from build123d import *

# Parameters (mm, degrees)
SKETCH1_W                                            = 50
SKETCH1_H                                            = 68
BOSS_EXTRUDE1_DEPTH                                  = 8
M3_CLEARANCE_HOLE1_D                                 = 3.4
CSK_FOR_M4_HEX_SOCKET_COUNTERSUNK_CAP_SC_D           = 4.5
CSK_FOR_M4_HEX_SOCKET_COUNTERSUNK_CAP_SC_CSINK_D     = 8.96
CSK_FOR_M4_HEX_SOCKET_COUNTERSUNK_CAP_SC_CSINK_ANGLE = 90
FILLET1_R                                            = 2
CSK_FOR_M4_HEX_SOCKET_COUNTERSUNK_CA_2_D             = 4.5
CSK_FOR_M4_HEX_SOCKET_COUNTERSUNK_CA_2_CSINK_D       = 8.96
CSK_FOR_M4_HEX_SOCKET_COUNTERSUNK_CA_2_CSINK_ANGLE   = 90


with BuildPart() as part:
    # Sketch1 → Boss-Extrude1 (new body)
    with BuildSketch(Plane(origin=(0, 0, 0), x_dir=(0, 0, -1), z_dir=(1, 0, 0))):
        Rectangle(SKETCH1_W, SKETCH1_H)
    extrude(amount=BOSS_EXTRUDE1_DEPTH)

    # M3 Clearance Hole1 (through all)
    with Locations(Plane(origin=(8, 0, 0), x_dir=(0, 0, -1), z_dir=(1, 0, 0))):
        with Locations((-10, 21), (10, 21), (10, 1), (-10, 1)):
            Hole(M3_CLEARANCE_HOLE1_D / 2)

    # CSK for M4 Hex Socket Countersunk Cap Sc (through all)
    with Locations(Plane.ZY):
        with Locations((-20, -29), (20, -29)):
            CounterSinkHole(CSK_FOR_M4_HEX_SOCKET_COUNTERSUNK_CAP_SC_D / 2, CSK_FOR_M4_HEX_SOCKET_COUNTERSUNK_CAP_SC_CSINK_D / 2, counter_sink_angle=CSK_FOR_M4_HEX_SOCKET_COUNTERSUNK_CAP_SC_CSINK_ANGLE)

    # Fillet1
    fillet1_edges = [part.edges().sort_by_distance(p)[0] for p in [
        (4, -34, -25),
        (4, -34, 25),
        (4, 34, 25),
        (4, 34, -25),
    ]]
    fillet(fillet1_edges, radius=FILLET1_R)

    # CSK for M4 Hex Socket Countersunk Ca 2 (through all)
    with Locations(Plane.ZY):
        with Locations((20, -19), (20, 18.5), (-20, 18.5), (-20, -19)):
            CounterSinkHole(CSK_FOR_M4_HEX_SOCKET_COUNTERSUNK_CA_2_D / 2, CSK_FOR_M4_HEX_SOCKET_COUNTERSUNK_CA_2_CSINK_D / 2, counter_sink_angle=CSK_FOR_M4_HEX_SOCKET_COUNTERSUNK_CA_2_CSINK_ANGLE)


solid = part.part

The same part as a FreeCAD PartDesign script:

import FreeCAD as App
import Part
import Sketcher

V = App.Vector
Q = App.Units.Quantity


def edges_at(feature, points):
    """Names of the edges that pass closest to the given points."""
    edges = feature.Shape.Edges
    near = lambda p: min(range(len(edges)), key=lambda i: edges[i].distToShape(Part.Vertex(*p))[0])
    return sorted({f"Edge{near(p) + 1}" for p in points})


def add_polygon(sketch, points):
    """Adds a closed chain of lines whose ends are joined by coincident constraints."""
    first, n = sketch.GeometryCount, len(points)
    for a, b in zip(points, points[1:] + points[:1]):
        sketch.addGeometry(Part.LineSegment(App.Vector(*a, 0), App.Vector(*b, 0)), False)
    for i in range(n):
        sketch.addConstraint(Sketcher.Constraint("Coincident", first + i, 2, first + (i + 1) % n, 1))

doc = App.newDocument("Part")
params = doc.addObject("Spreadsheet::Sheet", "Params")
for row, (alias, value) in enumerate([
    ("sketch1_width", "68 mm"),
    ("sketch1_height", "50 mm"),
    ("pad1_length", "8 mm"),
    ("sketch2_diameter", "3.4 mm"),
    ("hole_diameter", "3.4 mm"),
    ("sketch3_diameter", "4.5 mm"),
    ("hole2_diameter", "4.5 mm"),
    ("hole2_csink_diameter", "8.96 mm"),
    ("fillet_radius", "2 mm"),
    ("sketch4_diameter", "4.5 mm"),
    ("hole3_diameter", "4.5 mm"),
    ("hole3_csink_diameter", "8.96 mm"),
], start=1):
    params.set(f"A{row}", alias)
    params.set(f"B{row}", "=" + value)
    params.setAlias(f"B{row}", alias)

body = doc.addObject("PartDesign::Body", "Body")

sketch1 = body.newObject("Sketcher::SketchObject", "Sketch")
sketch1.AttachmentSupport = (doc.getObject("YZ_Plane"), [""])
sketch1.MapMode = "FlatFace"
add_polygon(sketch1, [(34, 25), (-34, 25), (-34, -25), (34, -25)])
sketch1.addConstraint([
    Sketcher.Constraint("Horizontal", 0),
    Sketcher.Constraint("Vertical", 1),
    Sketcher.Constraint("Horizontal", 2),
    Sketcher.Constraint("Vertical", 3),
    Sketcher.Constraint("Symmetric", 0, 2, 2, 2, -1, 1),
    Sketcher.Constraint("DistanceX", 0, 2, 0, 1, Q("68 mm")),
    Sketcher.Constraint("DistanceY", 1, 2, 1, 1, Q("50 mm")),
])
sketch1.setExpression("Constraints[9]", "Params.sketch1_width")
sketch1.setExpression("Constraints[10]", "Params.sketch1_height")
pad1 = body.newObject("PartDesign::Pad", "Pad")
pad1.Profile = sketch1
pad1.setExpression("Length", "Params.pad1_length")

sketch2 = body.newObject("Sketcher::SketchObject", "Sketch001")
sketch2.AttachmentSupport = (doc.getObject("YZ_Plane"), [""])
sketch2.MapMode = "FlatFace"
sketch2.AttachmentOffset = App.Placement(V(0, 0, 8), App.Rotation())
sketch2.addGeometry([
    Part.Circle(V(21, 10, 0), V(0, 0, 1), 1.7),
    Part.Circle(V(21, -10, 0), V(0, 0, 1), 1.7),
    Part.Circle(V(1, -10, 0), V(0, 0, 1), 1.7),
    Part.Circle(V(1, 10, 0), V(0, 0, 1), 1.7),
], False)
sketch2.addConstraint([
    Sketcher.Constraint("Equal", 0, 1),
    Sketcher.Constraint("Equal", 1, 2),
    Sketcher.Constraint("Equal", 2, 3),
    Sketcher.Constraint("Symmetric", 0, 3, 1, 3, -1),
    Sketcher.Constraint("Symmetric", 2, 3, 3, 3, -1),
    Sketcher.Constraint("Horizontal", 1, 3, 2, 3),
    Sketcher.Constraint("Diameter", 0, Q("3.4 mm")),
    Sketcher.Constraint("DistanceX", -1, 1, 0, 3, Q("21 mm")),
    Sketcher.Constraint("DistanceY", -1, 1, 0, 3, Q("10 mm")),
    Sketcher.Constraint("DistanceX", -1, 1, 2, 3, Q("1 mm")),
])
sketch2.setExpression("Constraints[6]", "Params.sketch2_diameter")
doc.recompute()
hole = body.newObject("PartDesign::Hole", "Hole")
hole.Profile = sketch2
hole.ThreadType = "None"
hole.setExpression("Diameter", "Params.hole_diameter")
hole.DepthType = "ThroughAll"

sketch3 = body.newObject("Sketcher::SketchObject", "Sketch002")
sketch3.AttachmentSupport = (doc.getObject("YZ_Plane"), [""])
sketch3.MapMode = "FlatFace"
sketch3.addGeometry([
    Part.Circle(V(-29, -20, 0), V(0, 0, 1), 2.2),
    Part.Circle(V(-29, 20, 0), V(0, 0, 1), 2.2),
], False)
sketch3.addConstraint([
    Sketcher.Constraint("Equal", 0, 1),
    Sketcher.Constraint("Symmetric", 0, 3, 1, 3, -1),
    Sketcher.Constraint("Diameter", 0, Q("4.5 mm")),
    Sketcher.Constraint("DistanceX", 0, 3, -1, 1, Q("29 mm")),
    Sketcher.Constraint("DistanceY", 0, 3, -1, 1, Q("20 mm")),
])
sketch3.setExpression("Constraints[2]", "Params.sketch3_diameter")
doc.recompute()
hole2 = body.newObject("PartDesign::Hole", "Hole001")
hole2.Profile = sketch3
hole2.ThreadType = "None"
hole2.setExpression("Diameter", "Params.hole2_diameter")
hole2.DepthType = "ThroughAll"
hole2.HoleCutType = "Countersink"
hole2.setExpression("HoleCutDiameter", "Params.hole2_csink_diameter")
hole2.HoleCutCountersinkAngle = 90
hole2.Reversed = True
doc.recompute()

fillet = body.newObject("PartDesign::Fillet", "Fillet")
fillet.Base = (hole2, edges_at(hole2, [
    (4, -34, -25),
    (4, -34, 25),
    (4, 34, 25),
    (4, 34, -25),
]))
fillet.setExpression("Radius", "Params.fillet_radius")

sketch4 = body.newObject("Sketcher::SketchObject", "Sketch003")
sketch4.AttachmentSupport = (doc.getObject("YZ_Plane"), [""])
sketch4.MapMode = "FlatFace"
sketch4.addGeometry([
    Part.Circle(V(-19, 20, 0), V(0, 0, 1), 2.2),
    Part.Circle(V(18.5, 20, 0), V(0, 0, 1), 2.2),
    Part.Circle(V(18.5, -20, 0), V(0, 0, 1), 2.2),
    Part.Circle(V(-19, -20, 0), V(0, 0, 1), 2.2),
], False)
sketch4.addConstraint([
    Sketcher.Constraint("Equal", 0, 1),
    Sketcher.Constraint("Equal", 1, 2),
    Sketcher.Constraint("Equal", 2, 3),
    Sketcher.Constraint("Symmetric", 1, 3, 2, 3, -1),
    Sketcher.Constraint("Symmetric", 0, 3, 3, 3, -1),
    Sketcher.Constraint("Horizontal", 0, 3, 1, 3),
    Sketcher.Constraint("Diameter", 0, Q("4.5 mm")),
    Sketcher.Constraint("DistanceX", 0, 3, -1, 1, Q("19 mm")),
    Sketcher.Constraint("DistanceY", -1, 1, 0, 3, Q("20 mm")),
    Sketcher.Constraint("DistanceX", -1, 1, 1, 3, Q("18.5 mm")),
])
sketch4.setExpression("Constraints[6]", "Params.sketch4_diameter")
doc.recompute()
hole3 = body.newObject("PartDesign::Hole", "Hole002")
hole3.Profile = sketch4
hole3.ThreadType = "None"
hole3.setExpression("Diameter", "Params.hole3_diameter")
hole3.DepthType = "ThroughAll"
hole3.HoleCutType = "Countersink"
hole3.setExpression("HoleCutDiameter", "Params.hole3_csink_diameter")
hole3.HoleCutCountersinkAngle = 90
hole3.Reversed = True

doc.recompute()
